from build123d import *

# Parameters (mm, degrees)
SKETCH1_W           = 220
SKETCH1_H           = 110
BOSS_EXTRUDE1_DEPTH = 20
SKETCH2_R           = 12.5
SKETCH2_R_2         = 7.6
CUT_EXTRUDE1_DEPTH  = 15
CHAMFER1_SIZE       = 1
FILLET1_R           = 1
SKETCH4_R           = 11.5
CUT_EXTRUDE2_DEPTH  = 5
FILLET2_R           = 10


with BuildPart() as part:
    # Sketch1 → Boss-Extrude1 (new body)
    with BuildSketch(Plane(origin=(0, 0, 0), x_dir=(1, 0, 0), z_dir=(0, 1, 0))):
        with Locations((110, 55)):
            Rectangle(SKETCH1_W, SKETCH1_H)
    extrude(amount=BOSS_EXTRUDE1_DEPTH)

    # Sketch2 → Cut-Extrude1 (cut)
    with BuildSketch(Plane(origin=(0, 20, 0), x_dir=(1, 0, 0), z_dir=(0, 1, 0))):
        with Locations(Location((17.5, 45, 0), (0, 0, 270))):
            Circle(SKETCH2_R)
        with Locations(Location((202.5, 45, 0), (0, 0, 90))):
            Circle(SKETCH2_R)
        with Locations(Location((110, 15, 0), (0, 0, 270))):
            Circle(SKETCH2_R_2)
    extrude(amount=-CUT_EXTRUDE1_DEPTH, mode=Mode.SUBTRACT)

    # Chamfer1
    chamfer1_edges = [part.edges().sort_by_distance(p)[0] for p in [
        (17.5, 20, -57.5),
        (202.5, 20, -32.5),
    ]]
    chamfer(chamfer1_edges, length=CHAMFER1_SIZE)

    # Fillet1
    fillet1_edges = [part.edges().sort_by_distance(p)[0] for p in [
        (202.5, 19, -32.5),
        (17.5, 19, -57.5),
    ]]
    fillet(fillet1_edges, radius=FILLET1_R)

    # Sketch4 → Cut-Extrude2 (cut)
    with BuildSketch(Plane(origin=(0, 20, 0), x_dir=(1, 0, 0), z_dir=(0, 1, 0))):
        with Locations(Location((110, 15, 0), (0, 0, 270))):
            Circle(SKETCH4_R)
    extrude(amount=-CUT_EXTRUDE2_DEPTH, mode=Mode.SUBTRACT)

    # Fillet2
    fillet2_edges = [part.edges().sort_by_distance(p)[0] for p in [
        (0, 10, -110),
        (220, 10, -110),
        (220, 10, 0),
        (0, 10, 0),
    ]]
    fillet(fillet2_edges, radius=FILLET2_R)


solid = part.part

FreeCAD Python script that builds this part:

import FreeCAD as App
import Part
import Sketcher
from FreeCAD import Vector
Q = App.Units.Quantity


def edges_at(feature, points):
    """Names of the edges that pass closest to the given points."""
    edges = feature.Shape.Edges
    near = lambda p: min(range(len(edges)), key=lambda i: edges[i].distToShape(Part.Vertex(*p))[0])
    return sorted({f"Edge{near(p) + 1}" for p in points})

doc = App.newDocument("Part")
body = doc.addObject("PartDesign::Body", "Body")

# Sketch on XZ plane
sketch1 = body.newObject("Sketcher::SketchObject", "Sketch")
sketch1.AttachmentSupport = (doc.getObject("XZ_Plane"), [""])
sketch1.MapMode = "FlatFace"
sketch1.addGeometry(Part.LineSegment(Vector(0, -110, 0), Vector(0, 0, 0)), False)
sketch1.addGeometry(Part.LineSegment(Vector(0, 0, 0), Vector(220, 0, 0)), False)
sketch1.addGeometry(Part.LineSegment(Vector(220, 0, 0), Vector(220, -110, 0)), False)
sketch1.addGeometry(Part.LineSegment(Vector(220, -110, 0), Vector(0, -110, 0)), False)
sketch1.addConstraint(Sketcher.Constraint("Coincident", 0, 2, 1, 1))
sketch1.addConstraint(Sketcher.Constraint("Coincident", 1, 2, 2, 1))
sketch1.addConstraint(Sketcher.Constraint("Coincident", 2, 2, 3, 1))
sketch1.addConstraint(Sketcher.Constraint("Coincident", 3, 2, 0, 1))
sketch1.addConstraint(Sketcher.Constraint("Vertical", 0))
sketch1.addConstraint(Sketcher.Constraint("Horizontal", 1))
sketch1.addConstraint(Sketcher.Constraint("Vertical", 2))
sketch1.addConstraint(Sketcher.Constraint("Horizontal", 3))
sketch1.addConstraint(Sketcher.Constraint("Coincident", 0, 2, -1, 1))
sketch1.addConstraint(Sketcher.Constraint("DistanceX", 1, 1, 1, 2, Q("220 mm")))
sketch1.addConstraint(Sketcher.Constraint("DistanceY", 0, 1, 0, 2, Q("110 mm")))
pad1 = body.newObject("PartDesign::Pad", "Pad")
pad1.Profile = sketch1
pad1.Length = 20
pad1.Reversed = True

# Sketch on XZ plane
sketch2 = body.newObject("Sketcher::SketchObject", "Sketch001")
sketch2.AttachmentSupport = (doc.getObject("XZ_Plane"), [""])
sketch2.MapMode = "FlatFace"
sketch2.AttachmentOffset = App.Placement(Vector(0, 0, -20), App.Rotation())
sketch2.addGeometry(Part.Circle(Vector(18, -45, 0), Vector(0, 0, 1), 12), False)
sketch2.addGeometry(Part.Circle(Vector(202, -45, 0), Vector(0, 0, 1), 12), False)
sketch2.addGeometry(Part.Circle(Vector(110, -15, 0), Vector(0, 0, 1), 8), False)
sketch2.addConstraint(Sketcher.Constraint("Equal", 0, 1))
sketch2.addConstraint(Sketcher.Constraint("Horizontal", 0, 3, 1, 3))
sketch2.addConstraint(Sketcher.Constraint("Diameter", 0, Q("25 mm")))
sketch2.addConstraint(Sketcher.Constraint("Diameter", 2, Q("15.2 mm")))
sketch2.addConstraint(Sketcher.Constraint("DistanceY", 0, 3, -1, 1, Q("45 mm")))
sketch2.addConstraint(Sketcher.Constraint("DistanceX", -1, 1, 2, 3, Q("110 mm")))
sketch2.addConstraint(Sketcher.Constraint("DistanceY", 2, 3, -1, 1, Q("15 mm")))
sketch2.addConstraint(Sketcher.Constraint("DistanceX", 0, 3, 1, 3, Q("185 mm")))
sketch2.addConstraint(Sketcher.Constraint("DistanceX", -1, 1, 0, 3, Q("17.5 mm")))
pocket1 = body.newObject("PartDesign::Pocket", "Pocket")
pocket1.Profile = sketch2
pocket1.Length = 15
pocket1.Reversed = True
doc.recompute()

chamfer = body.newObject("PartDesign::Chamfer", "Chamfer")
chamfer.Base = (pocket1, edges_at(pocket1, [(17.5, 20, -57.5), (202.5, 20, -32.5)]))
chamfer.Size = 1
doc.recompute()

fillet = body.newObject("PartDesign::Fillet", "Fillet")
fillet.Base = (chamfer, edges_at(chamfer, [(202.5, 19, -32.5), (17.5, 19, -57.5)]))
fillet.Radius = 1

# Sketch on XZ plane
sketch3 = body.newObject("Sketcher::SketchObject", "Sketch002")
sketch3.AttachmentSupport = (doc.getObject("XZ_Plane"), [""])
sketch3.MapMode = "FlatFace"
sketch3.AttachmentOffset = App.Placement(Vector(0, 0, -20), App.Rotation())
sketch3.addGeometry(Part.Circle(Vector(110, -15, 0), Vector(0, 0, 1), 12), False)
sketch3.addConstraint(Sketcher.Constraint("Diameter", 0, Q("23 mm")))
sketch3.addConstraint(Sketcher.Constraint("DistanceX", -1, 1, 0, 3, Q("110 mm")))
sketch3.addConstraint(Sketcher.Constraint("DistanceY", 0, 3, -1, 1, Q("15 mm")))
pocket2 = body.newObject("PartDesign::Pocket", "Pocket001")
pocket2.Profile = sketch3
pocket2.Length = 5
pocket2.Reversed = True
doc.recompute()

fillet2 = body.newObject("PartDesign::Fillet", "Fillet001")
fillet2.Base = (pocket2, edges_at(pocket2, [
    (0, 10, -110),
    (220, 10, -110),
    (220, 10, 0),
    (0, 10, 0),
]))
fillet2.Radius = 10

doc.recompute()
